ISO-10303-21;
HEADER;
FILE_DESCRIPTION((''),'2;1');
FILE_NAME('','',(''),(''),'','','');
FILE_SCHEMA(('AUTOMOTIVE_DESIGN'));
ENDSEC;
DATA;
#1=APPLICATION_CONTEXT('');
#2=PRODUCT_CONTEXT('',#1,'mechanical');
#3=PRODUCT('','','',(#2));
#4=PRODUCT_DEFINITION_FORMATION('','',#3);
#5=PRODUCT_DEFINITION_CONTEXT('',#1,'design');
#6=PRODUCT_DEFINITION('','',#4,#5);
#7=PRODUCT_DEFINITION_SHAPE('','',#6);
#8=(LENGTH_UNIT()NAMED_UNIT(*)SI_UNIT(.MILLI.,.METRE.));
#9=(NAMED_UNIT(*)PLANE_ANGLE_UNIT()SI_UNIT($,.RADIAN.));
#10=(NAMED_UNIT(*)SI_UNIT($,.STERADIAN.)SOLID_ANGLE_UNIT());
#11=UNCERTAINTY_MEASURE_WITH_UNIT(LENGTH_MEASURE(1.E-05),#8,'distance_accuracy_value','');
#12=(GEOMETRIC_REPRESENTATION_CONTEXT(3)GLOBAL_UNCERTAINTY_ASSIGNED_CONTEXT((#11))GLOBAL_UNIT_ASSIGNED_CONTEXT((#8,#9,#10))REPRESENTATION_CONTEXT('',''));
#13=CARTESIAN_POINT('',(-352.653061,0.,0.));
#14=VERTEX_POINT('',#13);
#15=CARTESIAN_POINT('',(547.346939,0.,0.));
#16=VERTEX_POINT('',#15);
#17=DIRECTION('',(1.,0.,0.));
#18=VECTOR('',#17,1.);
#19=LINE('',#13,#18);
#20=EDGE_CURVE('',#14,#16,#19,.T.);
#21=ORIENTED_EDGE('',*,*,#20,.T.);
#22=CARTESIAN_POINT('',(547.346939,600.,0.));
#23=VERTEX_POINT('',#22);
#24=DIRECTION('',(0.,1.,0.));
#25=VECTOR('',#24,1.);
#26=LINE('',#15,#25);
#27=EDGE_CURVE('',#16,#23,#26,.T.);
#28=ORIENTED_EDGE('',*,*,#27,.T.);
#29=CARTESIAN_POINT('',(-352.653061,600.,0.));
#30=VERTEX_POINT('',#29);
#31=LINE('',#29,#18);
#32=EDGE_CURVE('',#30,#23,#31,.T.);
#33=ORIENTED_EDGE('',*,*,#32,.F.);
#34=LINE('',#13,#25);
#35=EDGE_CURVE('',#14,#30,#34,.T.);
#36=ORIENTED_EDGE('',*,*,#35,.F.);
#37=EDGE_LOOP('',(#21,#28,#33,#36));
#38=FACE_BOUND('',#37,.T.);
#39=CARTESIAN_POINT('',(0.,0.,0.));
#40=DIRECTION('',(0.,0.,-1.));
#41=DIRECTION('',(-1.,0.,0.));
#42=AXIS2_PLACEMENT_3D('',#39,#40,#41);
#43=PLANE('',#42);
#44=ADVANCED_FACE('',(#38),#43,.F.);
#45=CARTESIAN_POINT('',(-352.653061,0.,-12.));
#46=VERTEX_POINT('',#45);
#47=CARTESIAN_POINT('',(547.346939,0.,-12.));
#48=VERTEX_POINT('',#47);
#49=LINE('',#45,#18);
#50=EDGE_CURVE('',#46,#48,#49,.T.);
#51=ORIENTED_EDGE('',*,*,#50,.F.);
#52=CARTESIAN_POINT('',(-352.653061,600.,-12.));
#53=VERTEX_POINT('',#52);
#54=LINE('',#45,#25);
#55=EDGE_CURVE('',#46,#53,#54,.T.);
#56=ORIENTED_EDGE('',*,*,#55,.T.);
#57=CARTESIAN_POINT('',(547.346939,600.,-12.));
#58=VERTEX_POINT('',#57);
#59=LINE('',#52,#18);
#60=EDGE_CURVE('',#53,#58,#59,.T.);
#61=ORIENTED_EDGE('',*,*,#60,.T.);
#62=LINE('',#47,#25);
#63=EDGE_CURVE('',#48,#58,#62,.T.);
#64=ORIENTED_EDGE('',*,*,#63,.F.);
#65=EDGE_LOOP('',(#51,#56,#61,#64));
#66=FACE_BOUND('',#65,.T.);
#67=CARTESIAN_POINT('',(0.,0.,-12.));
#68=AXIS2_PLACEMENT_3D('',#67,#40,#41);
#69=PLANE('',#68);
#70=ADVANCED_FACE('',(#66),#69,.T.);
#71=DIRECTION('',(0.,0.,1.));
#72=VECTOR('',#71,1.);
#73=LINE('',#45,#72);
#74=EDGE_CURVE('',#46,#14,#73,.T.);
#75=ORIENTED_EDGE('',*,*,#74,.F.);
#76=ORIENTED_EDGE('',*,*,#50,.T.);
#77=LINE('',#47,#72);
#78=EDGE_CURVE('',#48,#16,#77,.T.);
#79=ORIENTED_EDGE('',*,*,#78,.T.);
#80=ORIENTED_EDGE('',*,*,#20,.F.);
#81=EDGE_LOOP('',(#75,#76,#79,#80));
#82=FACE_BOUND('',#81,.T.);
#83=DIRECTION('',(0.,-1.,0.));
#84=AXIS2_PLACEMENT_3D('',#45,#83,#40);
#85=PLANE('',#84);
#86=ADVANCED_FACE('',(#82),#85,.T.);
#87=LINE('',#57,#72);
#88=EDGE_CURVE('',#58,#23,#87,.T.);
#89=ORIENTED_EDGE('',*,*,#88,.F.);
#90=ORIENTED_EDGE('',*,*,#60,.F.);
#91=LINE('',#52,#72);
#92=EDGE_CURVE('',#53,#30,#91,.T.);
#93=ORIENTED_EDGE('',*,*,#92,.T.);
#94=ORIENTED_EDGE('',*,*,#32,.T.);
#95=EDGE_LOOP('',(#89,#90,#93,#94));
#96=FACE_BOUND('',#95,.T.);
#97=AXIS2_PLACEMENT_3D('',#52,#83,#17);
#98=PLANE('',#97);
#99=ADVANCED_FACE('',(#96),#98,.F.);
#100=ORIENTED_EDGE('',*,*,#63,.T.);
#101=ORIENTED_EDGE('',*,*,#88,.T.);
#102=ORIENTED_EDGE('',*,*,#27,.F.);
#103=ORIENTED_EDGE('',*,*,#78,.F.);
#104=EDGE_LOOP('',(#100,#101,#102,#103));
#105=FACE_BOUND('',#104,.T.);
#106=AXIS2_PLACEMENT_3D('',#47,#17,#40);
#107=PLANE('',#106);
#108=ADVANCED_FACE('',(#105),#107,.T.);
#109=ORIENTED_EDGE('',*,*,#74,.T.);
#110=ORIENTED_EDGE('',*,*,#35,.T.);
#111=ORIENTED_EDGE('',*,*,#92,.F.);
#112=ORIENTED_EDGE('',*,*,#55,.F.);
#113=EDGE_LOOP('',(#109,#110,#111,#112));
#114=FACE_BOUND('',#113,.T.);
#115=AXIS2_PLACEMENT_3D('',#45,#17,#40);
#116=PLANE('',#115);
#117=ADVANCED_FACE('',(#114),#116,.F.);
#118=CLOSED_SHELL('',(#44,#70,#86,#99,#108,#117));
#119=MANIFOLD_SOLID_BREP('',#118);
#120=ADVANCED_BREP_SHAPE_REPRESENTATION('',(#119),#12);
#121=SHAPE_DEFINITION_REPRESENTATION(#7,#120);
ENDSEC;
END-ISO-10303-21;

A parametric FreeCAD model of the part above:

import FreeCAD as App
import Part
import Sketcher
from FreeCAD import Vector

doc = App.newDocument("Part")
body = doc.addObject("PartDesign::Body", "Body")

# Sketch on XY plane
sketch1 = body.newObject("Sketcher::SketchObject", "Sketch")
sketch1.AttachmentSupport = (doc.getObject("XY_Plane"), [""])
sketch1.MapMode = "FlatFace"
sketch1.addGeometry([
    Part.LineSegment(Vector(-353, 600, 0), Vector(-353, 0, 0)),
    Part.LineSegment(Vector(-353, 0, 0), Vector(547, 0, 0)),
    Part.LineSegment(Vector(547, 0, 0), Vector(547, 600, 0)),
    Part.LineSegment(Vector(547, 600, 0), Vector(-353, 600, 0)),
], False)
sketch1.addConstraint([
    Sketcher.Constraint("Coincident", 0, 2, 1, 1),
    Sketcher.Constraint("Coincident", 1, 2, 2, 1),
    Sketcher.Constraint("Coincident", 2, 2, 3, 1),
    Sketcher.Constraint("Coincident", 3, 2, 0, 1),
    Sketcher.Constraint("Vertical", 0),
    Sketcher.Constraint("Horizontal", 1),
    Sketcher.Constraint("Vertical", 2),
    Sketcher.Constraint("Horizontal", 3),
    Sketcher.Constraint("PointOnObject", 0, 2, -1),
    Sketcher.Constraint("DistanceX", 1, 1, 1, 2, 900.0),
    Sketcher.Constraint("DistanceY", 0, 2, 0, 1, 600.0),
    Sketcher.Constraint("DistanceX", 0, 2, -1, 1, 352.653061),
])
pad1 = body.newObject("PartDesign::Pad", "Pad")
pad1.Profile = sketch1
pad1.Length = 12
pad1.Reversed = True

doc.recompute()
